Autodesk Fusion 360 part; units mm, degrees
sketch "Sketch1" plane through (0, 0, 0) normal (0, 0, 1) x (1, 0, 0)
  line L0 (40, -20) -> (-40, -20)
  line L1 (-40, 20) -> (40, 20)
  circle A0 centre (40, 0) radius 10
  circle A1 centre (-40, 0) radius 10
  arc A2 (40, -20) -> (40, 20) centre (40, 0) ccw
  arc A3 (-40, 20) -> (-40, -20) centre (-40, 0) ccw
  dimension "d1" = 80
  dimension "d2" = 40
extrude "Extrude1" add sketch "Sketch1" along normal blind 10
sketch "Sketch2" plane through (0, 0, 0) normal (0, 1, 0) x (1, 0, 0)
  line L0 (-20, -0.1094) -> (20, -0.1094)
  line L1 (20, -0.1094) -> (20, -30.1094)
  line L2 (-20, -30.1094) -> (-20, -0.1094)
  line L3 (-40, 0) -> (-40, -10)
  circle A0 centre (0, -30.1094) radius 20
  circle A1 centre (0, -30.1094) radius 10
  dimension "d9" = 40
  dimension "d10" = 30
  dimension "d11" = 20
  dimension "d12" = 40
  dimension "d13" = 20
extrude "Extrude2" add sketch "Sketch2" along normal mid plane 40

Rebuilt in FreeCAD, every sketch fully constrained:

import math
import FreeCAD as App
import Part
import Sketcher
Q = App.Units.Quantity

doc = App.newDocument("Part")
body = doc.addObject("PartDesign::Body", "Body")

# Sketch on XY plane
sketch1 = body.newObject("Sketcher::SketchObject", "Sketch")
sketch1.AttachmentSupport = (doc.getObject("XY_Plane"), [""])
sketch1.MapMode = "FlatFace"
sketch1.addGeometry(Part.LineSegment(App.Vector(-40, -20, 0), App.Vector(40, -20, 0)), False)
sketch1.addGeometry(Part.ArcOfCircle(Part.Circle(App.Vector(40, 0, 0), App.Vector(0, 0, 1), 20), math.radians(-90), math.radians(90)), False)
sketch1.addGeometry(Part.LineSegment(App.Vector(40, 20, 0), App.Vector(-40, 20, 0)), False)
sketch1.addGeometry(Part.ArcOfCircle(Part.Circle(App.Vector(-40, 0, 0), App.Vector(0, 0, 1), 20), math.radians(90), math.radians(270)), False)
sketch1.addGeometry(Part.Circle(App.Vector(-40, 0, 0), App.Vector(0, 0, 1), 10), False)
sketch1.addGeometry(Part.Circle(App.Vector(40, 0, 0), App.Vector(0, 0, 1), 10), False)
sketch1.addConstraint(Sketcher.Constraint("Tangent", 0, 2, 1, 1))
sketch1.addConstraint(Sketcher.Constraint("Tangent", 1, 2, 2, 1))
sketch1.addConstraint(Sketcher.Constraint("Tangent", 2, 2, 3, 1))
sketch1.addConstraint(Sketcher.Constraint("Tangent", 3, 2, 0, 1))
sketch1.addConstraint(Sketcher.Constraint("Horizontal", 0))
sketch1.addConstraint(Sketcher.Constraint("Horizontal", 2))
sketch1.addConstraint(Sketcher.Constraint("Coincident", 4, 3, 3, 3))
sketch1.addConstraint(Sketcher.Constraint("Coincident", 5, 3, 1, 3))
sketch1.addConstraint(Sketcher.Constraint("Equal", 4, 5))
sketch1.addConstraint(Sketcher.Constraint("Symmetric", 1, 3, 3, 3, -1, 1))
sketch1.addConstraint(Sketcher.Constraint("Radius", 1, Q("20 mm")))
sketch1.addConstraint(Sketcher.Constraint("DistanceX", 0, 1, 0, 2, Q("80 mm")))
sketch1.addConstraint(Sketcher.Constraint("Diameter", 4, Q("20 mm")))
pad1 = body.newObject("PartDesign::Pad", "Pad")
pad1.Profile = sketch1
pad1.Length = 10

# Sketch on XZ plane
sketch2 = body.newObject("Sketcher::SketchObject", "Sketch001")
sketch2.AttachmentSupport = (doc.getObject("XZ_Plane"), [""])
sketch2.MapMode = "FlatFace"
sketch2.addGeometry(Part.LineSegment(App.Vector(20, 0, 0), App.Vector(-20, 0, 0)), False)
sketch2.addGeometry(Part.LineSegment(App.Vector(-20, 0, 0), App.Vector(-20, 30, 0)), False)
sketch2.addGeometry(Part.ArcOfCircle(Part.Circle(App.Vector(0, 30, 0), App.Vector(0, 0, 1), 20), math.radians(0), math.radians(180)), False)
sketch2.addGeometry(Part.LineSegment(App.Vector(20, 30, 0), App.Vector(20, 0, 0)), False)
sketch2.addGeometry(Part.Circle(App.Vector(0, 30, 0), App.Vector(0, 0, 1), 10), False)
sketch2.addConstraint(Sketcher.Constraint("Coincident", 0, 2, 1, 1))
sketch2.addConstraint(Sketcher.Constraint("Tangent", 1, 2, 2, 2))
sketch2.addConstraint(Sketcher.Constraint("Tangent", 2, 1, 3, 1))
sketch2.addConstraint(Sketcher.Constraint("Coincident", 3, 2, 0, 1))
sketch2.addConstraint(Sketcher.Constraint("Horizontal", 0))
sketch2.addConstraint(Sketcher.Constraint("Vertical", 1))
sketch2.addConstraint(Sketcher.Constraint("Vertical", 3))
sketch2.addConstraint(Sketcher.Constraint("Coincident", 4, 3, 2, 3))
sketch2.addConstraint(Sketcher.Constraint("PointOnObject", 2, 3, -2))
sketch2.addConstraint(Sketcher.Constraint("Diameter", 4, Q("20 mm")))
sketch2.addConstraint(Sketcher.Constraint("Radius", 2, Q("20 mm")))
sketch2.addConstraint(Sketcher.Constraint("DistanceY", 1, 1, 1, 2, Q("30 mm")))
sketch2.addConstraint(Sketcher.Constraint("DistanceY", -1, 1, 2, 3, Q("30.1094 mm")))
pad2 = body.newObject("PartDesign::Pad", "Pad001")
pad2.Profile = sketch2
pad2.Length = 40
pad2.Midplane = True

doc.recompute()
